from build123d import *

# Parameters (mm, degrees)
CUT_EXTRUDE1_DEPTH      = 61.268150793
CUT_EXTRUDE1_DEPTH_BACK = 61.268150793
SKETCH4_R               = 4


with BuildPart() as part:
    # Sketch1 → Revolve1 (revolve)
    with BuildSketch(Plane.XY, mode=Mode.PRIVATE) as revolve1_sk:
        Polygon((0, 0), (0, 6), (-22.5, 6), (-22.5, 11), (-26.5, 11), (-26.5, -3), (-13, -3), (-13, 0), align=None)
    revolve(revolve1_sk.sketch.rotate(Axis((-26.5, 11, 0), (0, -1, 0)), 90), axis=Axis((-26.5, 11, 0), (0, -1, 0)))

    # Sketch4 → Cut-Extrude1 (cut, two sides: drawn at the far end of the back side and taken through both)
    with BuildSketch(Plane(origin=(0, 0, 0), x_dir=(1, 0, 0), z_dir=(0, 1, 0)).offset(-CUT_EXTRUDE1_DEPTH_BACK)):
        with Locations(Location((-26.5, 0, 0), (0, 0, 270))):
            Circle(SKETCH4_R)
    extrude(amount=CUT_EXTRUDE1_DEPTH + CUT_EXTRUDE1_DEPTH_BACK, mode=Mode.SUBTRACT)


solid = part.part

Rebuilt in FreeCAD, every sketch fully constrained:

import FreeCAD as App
import Part
import Sketcher
from FreeCAD import Vector


def add_polygon(sketch, points):
    """Adds a closed chain of lines whose ends are joined by coincident constraints."""
    first, n = sketch.GeometryCount, len(points)
    for a, b in zip(points, points[1:] + points[:1]):
        sketch.addGeometry(Part.LineSegment(App.Vector(*a, 0), App.Vector(*b, 0)), False)
    for i in range(n):
        sketch.addConstraint(Sketcher.Constraint("Coincident", first + i, 2, first + (i + 1) % n, 1))

doc = App.newDocument("Part")
body = doc.addObject("PartDesign::Body", "Body")

# Sketch on XY plane
sketch1 = body.newObject("Sketcher::SketchObject", "Sketch")
sketch1.AttachmentSupport = (doc.getObject("XY_Plane"), [""])
sketch1.MapMode = "FlatFace"
add_polygon(sketch1, [(0, 0), (0, 6), (-22.5, 6), (-22.5, 11), (-26.5, 11), (-26.5, -3), (-13, -3), (-13, 0)])  # lines 0-7
sketch1.addGeometry(Part.LineSegment(Vector(-26.5, 11, 0), Vector(-26.5, -3, 0)), True)  # axis
sketch1.addConstraint([
    Sketcher.Constraint("Vertical", 0),
    Sketcher.Constraint("Horizontal", 1),
    Sketcher.Constraint("Vertical", 2),
    Sketcher.Constraint("Horizontal", 3),
    Sketcher.Constraint("Vertical", 4),
    Sketcher.Constraint("Horizontal", 5),
    Sketcher.Constraint("Vertical", 6),
    Sketcher.Constraint("Horizontal", 7),
    Sketcher.Constraint("Vertical", 8),
    Sketcher.Constraint("Coincident", 7, 2, -1, 1),
    Sketcher.Constraint("Coincident", 8, 1, 3, 2),
    Sketcher.Constraint("Horizontal", 5, 2, 8, 2),
    Sketcher.Constraint("DistanceX", 3, 2, 3, 1, 4.0),
    Sketcher.Constraint("DistanceX", 7, 1, 7, 2, 13.0),
    Sketcher.Constraint("DistanceY", 0, 1, 0, 2, 6.0),
    Sketcher.Constraint("DistanceY", 2, 1, 2, 2, 5.0),
    Sketcher.Constraint("DistanceY", 4, 2, 4, 1, 14.0),
    Sketcher.Constraint("DistanceX", 1, 2, 1, 1, 22.5),
])
revolution = body.newObject("PartDesign::Revolution", "Revolution")
revolution.Profile = sketch1
revolution.ReferenceAxis = (sketch1, ["Axis0"])
revolution.Angle = 360

# Sketch on XZ plane
sketch2 = body.newObject("Sketcher::SketchObject", "Sketch001")
sketch2.AttachmentSupport = (doc.getObject("XZ_Plane"), [""])
sketch2.MapMode = "FlatFace"
sketch2.addGeometry(Part.Circle(Vector(-26.5, 0, 0), Vector(0, 0, 1), 4), False)
sketch2.addConstraint([
    Sketcher.Constraint("PointOnObject", 0, 3, -1),
    Sketcher.Constraint("Diameter", 0, 8.0),
    Sketcher.Constraint("DistanceX", 0, 3, -1, 1, 26.5),
])
pocket1 = body.newObject("PartDesign::Pocket", "Pocket")
pocket1.Profile = sketch2
pocket1.Type = "ThroughAll"
pocket1.Midplane = True

doc.recompute()
